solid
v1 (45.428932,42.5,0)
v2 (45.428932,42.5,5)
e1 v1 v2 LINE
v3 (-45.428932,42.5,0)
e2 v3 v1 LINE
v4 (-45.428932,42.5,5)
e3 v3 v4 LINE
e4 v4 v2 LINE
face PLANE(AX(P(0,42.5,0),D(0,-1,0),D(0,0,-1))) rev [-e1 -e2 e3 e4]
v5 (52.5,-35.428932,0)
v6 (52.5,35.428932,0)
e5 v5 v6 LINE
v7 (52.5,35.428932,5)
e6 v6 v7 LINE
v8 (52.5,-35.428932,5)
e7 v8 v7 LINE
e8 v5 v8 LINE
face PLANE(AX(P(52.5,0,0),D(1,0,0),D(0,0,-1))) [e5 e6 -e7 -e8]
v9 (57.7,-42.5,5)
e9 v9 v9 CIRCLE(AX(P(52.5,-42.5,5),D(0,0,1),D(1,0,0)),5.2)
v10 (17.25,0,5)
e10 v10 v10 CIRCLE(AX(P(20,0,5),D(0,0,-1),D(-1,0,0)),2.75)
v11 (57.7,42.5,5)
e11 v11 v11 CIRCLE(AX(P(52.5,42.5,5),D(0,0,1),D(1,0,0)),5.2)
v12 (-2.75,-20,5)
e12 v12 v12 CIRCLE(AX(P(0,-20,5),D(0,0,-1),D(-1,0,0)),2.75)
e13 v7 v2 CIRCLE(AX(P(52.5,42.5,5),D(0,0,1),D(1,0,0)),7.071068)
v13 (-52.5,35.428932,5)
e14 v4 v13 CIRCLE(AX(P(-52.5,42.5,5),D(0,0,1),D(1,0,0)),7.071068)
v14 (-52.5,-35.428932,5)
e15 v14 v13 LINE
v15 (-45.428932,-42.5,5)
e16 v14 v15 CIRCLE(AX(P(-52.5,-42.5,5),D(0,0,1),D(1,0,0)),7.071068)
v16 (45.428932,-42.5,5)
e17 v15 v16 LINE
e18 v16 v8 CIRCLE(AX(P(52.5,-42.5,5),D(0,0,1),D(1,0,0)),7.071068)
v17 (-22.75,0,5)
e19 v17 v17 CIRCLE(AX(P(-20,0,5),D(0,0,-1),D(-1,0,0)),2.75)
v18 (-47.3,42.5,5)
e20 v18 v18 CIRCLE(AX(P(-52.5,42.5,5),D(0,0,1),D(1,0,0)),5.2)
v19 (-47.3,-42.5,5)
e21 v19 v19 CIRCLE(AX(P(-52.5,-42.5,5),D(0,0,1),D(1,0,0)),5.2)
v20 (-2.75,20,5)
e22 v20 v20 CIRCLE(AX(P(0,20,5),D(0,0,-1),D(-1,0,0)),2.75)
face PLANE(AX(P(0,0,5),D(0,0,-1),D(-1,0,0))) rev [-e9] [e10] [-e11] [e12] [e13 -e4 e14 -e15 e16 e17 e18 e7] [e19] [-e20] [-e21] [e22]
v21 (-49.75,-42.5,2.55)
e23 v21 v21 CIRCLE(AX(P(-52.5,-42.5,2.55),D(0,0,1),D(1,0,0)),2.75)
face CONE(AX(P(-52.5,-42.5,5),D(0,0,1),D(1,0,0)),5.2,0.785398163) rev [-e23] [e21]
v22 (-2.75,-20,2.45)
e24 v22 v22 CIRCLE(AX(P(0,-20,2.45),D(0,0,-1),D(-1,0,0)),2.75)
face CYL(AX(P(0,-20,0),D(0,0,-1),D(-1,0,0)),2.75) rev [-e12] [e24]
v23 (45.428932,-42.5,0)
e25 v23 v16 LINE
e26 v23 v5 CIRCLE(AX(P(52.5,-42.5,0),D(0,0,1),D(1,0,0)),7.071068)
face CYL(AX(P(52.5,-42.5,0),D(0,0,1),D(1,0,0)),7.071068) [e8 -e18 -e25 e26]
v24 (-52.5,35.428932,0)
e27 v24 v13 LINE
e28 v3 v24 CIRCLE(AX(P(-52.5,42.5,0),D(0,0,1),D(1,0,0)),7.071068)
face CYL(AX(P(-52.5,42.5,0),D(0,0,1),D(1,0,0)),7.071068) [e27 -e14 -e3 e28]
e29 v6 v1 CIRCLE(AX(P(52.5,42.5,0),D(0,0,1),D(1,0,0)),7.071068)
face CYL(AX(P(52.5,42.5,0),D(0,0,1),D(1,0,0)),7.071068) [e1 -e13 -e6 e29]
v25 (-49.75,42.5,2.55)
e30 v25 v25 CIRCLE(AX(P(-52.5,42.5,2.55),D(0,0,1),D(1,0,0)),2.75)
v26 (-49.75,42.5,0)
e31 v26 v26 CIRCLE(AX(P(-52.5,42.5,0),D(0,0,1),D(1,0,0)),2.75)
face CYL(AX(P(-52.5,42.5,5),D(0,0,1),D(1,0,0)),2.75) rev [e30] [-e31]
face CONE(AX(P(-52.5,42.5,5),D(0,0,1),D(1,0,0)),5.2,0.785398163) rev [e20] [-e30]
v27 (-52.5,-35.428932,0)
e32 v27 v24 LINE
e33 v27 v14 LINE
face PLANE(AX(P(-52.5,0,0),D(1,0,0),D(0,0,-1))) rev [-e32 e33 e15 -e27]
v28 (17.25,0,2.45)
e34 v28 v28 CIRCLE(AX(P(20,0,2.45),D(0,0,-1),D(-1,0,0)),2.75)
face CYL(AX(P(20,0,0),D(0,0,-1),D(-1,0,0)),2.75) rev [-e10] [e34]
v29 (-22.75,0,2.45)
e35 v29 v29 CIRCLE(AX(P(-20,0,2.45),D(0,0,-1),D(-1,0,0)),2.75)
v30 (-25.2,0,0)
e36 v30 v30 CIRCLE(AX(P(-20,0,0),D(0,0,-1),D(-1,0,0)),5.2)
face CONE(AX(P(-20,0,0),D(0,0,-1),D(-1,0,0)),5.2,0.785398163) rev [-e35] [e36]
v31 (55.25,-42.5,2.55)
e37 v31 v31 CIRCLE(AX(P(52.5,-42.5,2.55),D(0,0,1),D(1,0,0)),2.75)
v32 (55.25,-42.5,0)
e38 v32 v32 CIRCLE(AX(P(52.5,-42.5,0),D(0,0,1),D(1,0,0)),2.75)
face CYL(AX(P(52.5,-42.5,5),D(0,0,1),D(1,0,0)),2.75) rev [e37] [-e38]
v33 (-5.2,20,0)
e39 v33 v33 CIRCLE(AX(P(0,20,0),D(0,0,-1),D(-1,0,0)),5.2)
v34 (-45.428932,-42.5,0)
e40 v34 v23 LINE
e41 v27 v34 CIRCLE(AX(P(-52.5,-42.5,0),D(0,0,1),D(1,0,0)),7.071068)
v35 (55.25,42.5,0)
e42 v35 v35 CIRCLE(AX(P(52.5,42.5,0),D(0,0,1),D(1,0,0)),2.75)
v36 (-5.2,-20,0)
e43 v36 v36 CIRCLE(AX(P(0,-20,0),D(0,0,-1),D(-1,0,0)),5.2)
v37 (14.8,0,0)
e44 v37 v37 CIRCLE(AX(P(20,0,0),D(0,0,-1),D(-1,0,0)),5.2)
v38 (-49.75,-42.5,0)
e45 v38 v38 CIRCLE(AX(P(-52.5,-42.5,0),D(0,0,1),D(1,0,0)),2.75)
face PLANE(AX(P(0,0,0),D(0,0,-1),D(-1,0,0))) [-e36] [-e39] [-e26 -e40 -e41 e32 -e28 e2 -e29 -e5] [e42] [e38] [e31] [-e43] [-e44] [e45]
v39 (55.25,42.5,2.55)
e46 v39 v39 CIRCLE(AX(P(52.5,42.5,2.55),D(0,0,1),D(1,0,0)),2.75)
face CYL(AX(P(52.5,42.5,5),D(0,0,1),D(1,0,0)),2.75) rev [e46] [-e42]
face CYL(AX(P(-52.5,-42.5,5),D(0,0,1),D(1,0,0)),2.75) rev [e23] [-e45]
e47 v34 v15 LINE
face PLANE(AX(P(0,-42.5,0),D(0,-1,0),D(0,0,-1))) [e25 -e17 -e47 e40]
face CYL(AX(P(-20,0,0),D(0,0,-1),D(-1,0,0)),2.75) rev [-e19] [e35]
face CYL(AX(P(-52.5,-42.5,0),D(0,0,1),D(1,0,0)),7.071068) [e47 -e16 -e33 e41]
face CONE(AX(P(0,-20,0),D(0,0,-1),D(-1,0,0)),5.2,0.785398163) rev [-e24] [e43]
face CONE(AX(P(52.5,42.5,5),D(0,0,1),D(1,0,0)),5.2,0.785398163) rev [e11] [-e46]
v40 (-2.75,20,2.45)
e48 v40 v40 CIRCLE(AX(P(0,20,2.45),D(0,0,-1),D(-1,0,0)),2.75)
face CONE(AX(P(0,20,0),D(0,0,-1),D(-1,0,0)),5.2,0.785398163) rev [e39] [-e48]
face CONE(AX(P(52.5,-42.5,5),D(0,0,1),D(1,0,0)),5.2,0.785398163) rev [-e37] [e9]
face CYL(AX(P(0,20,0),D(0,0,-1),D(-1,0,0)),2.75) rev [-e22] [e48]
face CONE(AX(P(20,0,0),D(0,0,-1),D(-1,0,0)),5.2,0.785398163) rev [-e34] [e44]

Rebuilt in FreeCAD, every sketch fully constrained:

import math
import FreeCAD as App
import Part
import Sketcher

V = App.Vector
Q = App.Units.Quantity


def add_polygon(sketch, points):
    """Adds a closed chain of lines whose ends are joined by coincident constraints."""
    first, n = sketch.GeometryCount, len(points)
    for a, b in zip(points, points[1:] + points[:1]):
        sketch.addGeometry(Part.LineSegment(App.Vector(*a, 0), App.Vector(*b, 0)), False)
    for i in range(n):
        sketch.addConstraint(Sketcher.Constraint("Coincident", first + i, 2, first + (i + 1) % n, 1))

doc = App.newDocument("Part")
body = doc.addObject("PartDesign::Body", "Body")

# Sketch on XY plane
sketch1 = doc.addObject("Sketcher::SketchObject", "Sketch")
body.addObject(sketch1)
sketch1.AttachmentSupport = (doc.XY_Plane, [""])
sketch1.MapMode = "FlatFace"
add_polygon(sketch1, [(-47.5, -37.5), (47.5, -37.5), (47.5, 37.5), (-47.5, 37.5)])  # lines 0-3
sketch1.addGeometry(Part.Circle(V(20, 0, 0), V(0, 0, 1), 1), False)  # 4
sketch1.addGeometry(Part.Circle(V(0, -20, 0), V(0, 0, 1), 1), False)  # 5
sketch1.addGeometry(Part.Circle(V(0, 20, 0), V(0, 0, 1), 1), False)  # 6
sketch1.addGeometry(Part.Circle(V(-20, 0, 0), V(0, 0, 1), 1), False)  # 7
sketch1.addConstraint([
    Sketcher.Constraint("Horizontal", 0),
    Sketcher.Constraint("Vertical", 1),
    Sketcher.Constraint("Horizontal", 2),
    Sketcher.Constraint("Vertical", 3),
    Sketcher.Constraint("Equal", 4, 5),
    Sketcher.Constraint("Equal", 5, 6),
    Sketcher.Constraint("Equal", 6, 7),
    Sketcher.Constraint("Symmetric", 5, 3, 6, 3, -1, 1),
    Sketcher.Constraint("Symmetric", 4, 3, 7, 3, -1, 1),
    Sketcher.Constraint("Symmetric", 0, 2, 2, 2, -1, 1),
    Sketcher.Constraint("PointOnObject", 4, 3, -1),
    Sketcher.Constraint("PointOnObject", 5, 3, -2),
    Sketcher.Constraint("Diameter", 4, Q("2 mm")),
    Sketcher.Constraint("DistanceX", 0, 1, 0, 2, Q("95 mm")),
    Sketcher.Constraint("DistanceY", 1, 1, 1, 2, Q("75 mm")),
    Sketcher.Constraint("DistanceX", -1, 1, 4, 3, Q("20 mm")),
    Sketcher.Constraint("DistanceY", 5, 3, -1, 1, Q("20 mm")),
])
pad1 = doc.addObject("PartDesign::Pad", "Pad")
body.addObject(pad1)
pad1.Profile = sketch1
pad1.Length = 5

# Sketch on YZ plane
sketch2 = doc.addObject("Sketcher::SketchObject", "Sketch001")
body.addObject(sketch2)
sketch2.AttachmentSupport = (doc.YZ_Plane, [""])
sketch2.MapMode = "FlatFace"
add_polygon(sketch2, [(20, 5), (20, 0), (25.2, 0), (22.8, 2.5), (22.8, 5)])  # lines 0-4
sketch2.addGeometry(Part.LineSegment(V(20, 0, 0), V(20, 5, 0)), True)  # axis
sketch2.addConstraint([
    Sketcher.Constraint("Vertical", 0),
    Sketcher.Constraint("Horizontal", 1),
    Sketcher.Constraint("Vertical", 3),
    Sketcher.Constraint("Horizontal", 4),
    Sketcher.Constraint("Vertical", 5),
    Sketcher.Constraint("Coincident", 5, 1, 0, 2),
    Sketcher.Constraint("PointOnObject", 0, 2, -1),
    Sketcher.Constraint("Horizontal", 3, 2, 5, 2),
    Sketcher.Constraint("DistanceY", 0, 2, 0, 1, Q("5 mm")),
    Sketcher.Constraint("Angle", 2, Q("135 deg")),
    Sketcher.Constraint("DistanceX", 1, 1, 1, 2, Q("5.2 mm")),
    Sketcher.Constraint("DistanceX", -1, 1, 0, 2, Q("20 mm")),
    Sketcher.Constraint("DistanceX", 4, 2, 4, 1, Q("2.75 mm")),
])
groove = doc.addObject("PartDesign::Groove", "Groove")
body.addObject(groove)
groove.Profile = sketch2
groove.ReferenceAxis = (sketch2, ["Axis0"])
groove.Angle = 360
doc.recompute()

datumline = doc.addObject("PartDesign::Line", "DatumLine")
body.addObject(datumline)
datumline.Placement = App.Placement(V(0, 0, 0), App.Rotation(V(0, 0, 1), V(-0.707106781, -0.707106781, 0)))
linearpattern = doc.addObject("PartDesign::LinearPattern", "LinearPattern")
body.addObject(linearpattern)
linearpattern.Originals = [groove]
linearpattern.Direction = (datumline, [""])
linearpattern.Mode = "offset"
linearpattern.Offset = 28.284271
linearpattern.Occurrences = 2
body.Tip = linearpattern
doc.recompute()

linearpattern2 = doc.addObject("PartDesign::LinearPattern", "LinearPattern001")
body.addObject(linearpattern2)
linearpattern2.Originals = [groove]
linearpattern2.Direction = (doc.Y_Axis, [""])
linearpattern2.Mode = "offset"
linearpattern2.Offset = 40
linearpattern2.Occurrences = 2
linearpattern2.Reversed = True
body.Tip = linearpattern2
doc.recompute()

datumline2 = doc.addObject("PartDesign::Line", "DatumLine001")
body.addObject(datumline2)
datumline2.Placement = App.Placement(V(0, 0, 0), App.Rotation(V(0, 0, 1), V(0.707106781, -0.707106781, 0)))
linearpattern3 = doc.addObject("PartDesign::LinearPattern", "LinearPattern002")
body.addObject(linearpattern3)
linearpattern3.Originals = [groove]
linearpattern3.Direction = (datumline2, [""])
linearpattern3.Mode = "offset"
linearpattern3.Offset = 28.284271
linearpattern3.Occurrences = 2
body.Tip = linearpattern3

# Sketch on XY plane
sketch3 = doc.addObject("Sketcher::SketchObject", "Sketch002")
body.addObject(sketch3)
sketch3.AttachmentSupport = (doc.XY_Plane, [""])
sketch3.MapMode = "FlatFace"
sketch3.AttachmentOffset = App.Placement(V(0, 0, 5), App.Rotation())
sketch3.addGeometry(Part.ArcOfCircle(Part.Circle(V(-52, -42, 0), V(0, 0, 1), 7), math.radians(90), math.radians(360)), False)  # 0
sketch3.addGeometry(Part.LineSegment(V(-45, -42, 0), V(45, -42, 0)), False)  # 1
sketch3.addGeometry(Part.ArcOfCircle(Part.Circle(V(52, -42, 0), V(0, 0, 1), 7), math.radians(180), math.radians(360)), False)  # 2
sketch3.addGeometry(Part.ArcOfCircle(Part.Circle(V(52, -42, 0), V(0, 0, 1), 7), math.radians(0), math.radians(90)), False)  # 3
sketch3.addGeometry(Part.LineSegment(V(52, -35, 0), V(52, 35, 0)), False)  # 4
sketch3.addGeometry(Part.ArcOfCircle(Part.Circle(V(52, 42, 0), V(0, 0, 1), 7), math.radians(-90), math.radians(0)), False)  # 5
sketch3.addGeometry(Part.ArcOfCircle(Part.Circle(V(52, 42, 0), V(0, 0, 1), 7), math.radians(0), math.radians(180)), False)  # 6
sketch3.addGeometry(Part.LineSegment(V(45, 42, 0), V(-45, 42, 0)), False)  # 7
sketch3.addGeometry(Part.ArcOfCircle(Part.Circle(V(-52, 42, 0), V(0, 0, 1), 7), math.radians(0), math.radians(270)), False)  # 8
sketch3.addGeometry(Part.LineSegment(V(-52, 35, 0), V(-52, -35, 0)), False)  # 9
add_polygon(sketch3, [(-48, 38), (48, 38), (48, -38), (-48, -38)])  # lines 10-13
sketch3.addConstraint([
    Sketcher.Constraint("Coincident", 0, 2, 1, 1),
    Sketcher.Constraint("Coincident", 1, 2, 2, 1),
    Sketcher.Constraint("Tangent", 2, 2, 3, 1),
    Sketcher.Constraint("Coincident", 3, 2, 4, 1),
    Sketcher.Constraint("Coincident", 4, 2, 5, 1),
    Sketcher.Constraint("Tangent", 5, 2, 6, 1),
    Sketcher.Constraint("Coincident", 6, 2, 7, 1),
    Sketcher.Constraint("Coincident", 7, 2, 8, 1),
    Sketcher.Constraint("Coincident", 8, 2, 9, 1),
    Sketcher.Constraint("Coincident", 9, 2, 0, 1),
    Sketcher.Constraint("Horizontal", 1),
    Sketcher.Constraint("Vertical", 4),
    Sketcher.Constraint("Horizontal", 7),
    Sketcher.Constraint("Vertical", 9),
    Sketcher.Constraint("Horizontal", 10),
    Sketcher.Constraint("Vertical", 11),
    Sketcher.Constraint("Horizontal", 12),
    Sketcher.Constraint("Vertical", 13),
    Sketcher.Constraint("Equal", 0, 2),
    Sketcher.Constraint("Equal", 2, 3),
    Sketcher.Constraint("Equal", 3, 5),
    Sketcher.Constraint("Equal", 5, 6),
    Sketcher.Constraint("Equal", 6, 8),
    Sketcher.Constraint("Symmetric", 0, 3, 5, 3, -1, 1),
    Sketcher.Constraint("Symmetric", 2, 3, 8, 3, -1, 1),
    Sketcher.Constraint("Symmetric", 10, 2, 12, 2, -1, 1),
    Sketcher.Constraint("Symmetric", 0, 3, 2, 3, -2),
    Sketcher.Constraint("Horizontal", 3, 3, 0, 2),
    Sketcher.Constraint("Horizontal", 1, 2, 2, 2),
    Sketcher.Constraint("Horizontal", 8, 3, 5, 2),
    Sketcher.Constraint("Horizontal", 5, 2, 6, 2),
    Sketcher.Constraint("Vertical", 6, 3, 3, 2),
    Sketcher.Constraint("Vertical", 0, 3, 8, 2),
    Sketcher.Constraint("DistanceX", 10, 1, 10, 2, Q("95 mm")),
    Sketcher.Constraint("DistanceY", 11, 2, 11, 1, Q("75 mm")),
    Sketcher.Constraint("DistanceX", 0, 3, 2, 3, Q("105 mm")),
    Sketcher.Constraint("DistanceY", 2, 3, 5, 3, Q("85 mm")),
    Sketcher.Constraint("Radius", 0, Q("7.071068 mm")),
])
pad2 = doc.addObject("PartDesign::Pad", "Pad001")
body.addObject(pad2)
pad2.Profile = sketch3
pad2.Length = 5
pad2.Reversed = True

# Sketch on YZ plane
sketch4 = doc.addObject("Sketcher::SketchObject", "Sketch003")
body.addObject(sketch4)
sketch4.AttachmentSupport = (doc.YZ_Plane, [""])
sketch4.MapMode = "FlatFace"
sketch4.AttachmentOffset = App.Placement(V(0, 0, -52.5), App.Rotation())
add_polygon(sketch4, [(42.5, 0), (42.5, 5), (37.3, 5), (39.8, 2.5), (39.8, 0)])  # lines 0-4
sketch4.addGeometry(Part.LineSegment(V(42.5, 5, 0), V(42.5, 0, 0)), True)  # axis
sketch4.addConstraint([
    Sketcher.Constraint("Vertical", 0),
    Sketcher.Constraint("Horizontal", 1),
    Sketcher.Constraint("Vertical", 3),
    Sketcher.Constraint("Horizontal", 4),
    Sketcher.Constraint("Vertical", 5),
    Sketcher.Constraint("Coincident", 5, 1, 0, 2),
    Sketcher.Constraint("PointOnObject", 3, 2, -1),
    Sketcher.Constraint("PointOnObject", 5, 2, -1),
    Sketcher.Constraint("DistanceY", 0, 1, 0, 2, Q("5 mm")),
    Sketcher.Constraint("Angle", 2, Q("-45 deg")),
    Sketcher.Constraint("DistanceX", 1, 2, 1, 1, Q("5.2 mm")),
    Sketcher.Constraint("DistanceX", 4, 1, 4, 2, Q("2.75 mm")),
    Sketcher.Constraint("DistanceX", -1, 1, 0, 2, Q("42.5 mm")),
])
groove2 = doc.addObject("PartDesign::Groove", "Groove001")
body.addObject(groove2)
groove2.Profile = sketch4
groove2.ReferenceAxis = (sketch4, ["Axis0"])
groove2.Angle = 360
doc.recompute()

linearpattern4 = doc.addObject("PartDesign::LinearPattern", "LinearPattern003")
body.addObject(linearpattern4)
linearpattern4.Originals = [groove2]
linearpattern4.Direction = (doc.X_Axis, [""])
linearpattern4.Mode = "offset"
linearpattern4.Offset = 105
linearpattern4.Occurrences = 2
body.Tip = linearpattern4
doc.recompute()

datumline3 = doc.addObject("PartDesign::Line", "DatumLine002")
body.addObject(datumline3)
datumline3.Placement = App.Placement(V(0, 0, 0), App.Rotation(V(0, 0, 1), V(0.777244871, -0.629198229, 0)))
linearpattern5 = doc.addObject("PartDesign::LinearPattern", "LinearPattern004")
body.addObject(linearpattern5)
linearpattern5.Originals = [groove2]
linearpattern5.Direction = (datumline3, [""])
linearpattern5.Mode = "offset"
linearpattern5.Offset = 135.092561
linearpattern5.Occurrences = 2
body.Tip = linearpattern5
doc.recompute()

linearpattern6 = doc.addObject("PartDesign::LinearPattern", "LinearPattern005")
body.addObject(linearpattern6)
linearpattern6.Originals = [groove2]
linearpattern6.Direction = (doc.Y_Axis, [""])
linearpattern6.Mode = "offset"
linearpattern6.Offset = 85
linearpattern6.Occurrences = 2
linearpattern6.Reversed = True
body.Tip = linearpattern6

doc.recompute()
